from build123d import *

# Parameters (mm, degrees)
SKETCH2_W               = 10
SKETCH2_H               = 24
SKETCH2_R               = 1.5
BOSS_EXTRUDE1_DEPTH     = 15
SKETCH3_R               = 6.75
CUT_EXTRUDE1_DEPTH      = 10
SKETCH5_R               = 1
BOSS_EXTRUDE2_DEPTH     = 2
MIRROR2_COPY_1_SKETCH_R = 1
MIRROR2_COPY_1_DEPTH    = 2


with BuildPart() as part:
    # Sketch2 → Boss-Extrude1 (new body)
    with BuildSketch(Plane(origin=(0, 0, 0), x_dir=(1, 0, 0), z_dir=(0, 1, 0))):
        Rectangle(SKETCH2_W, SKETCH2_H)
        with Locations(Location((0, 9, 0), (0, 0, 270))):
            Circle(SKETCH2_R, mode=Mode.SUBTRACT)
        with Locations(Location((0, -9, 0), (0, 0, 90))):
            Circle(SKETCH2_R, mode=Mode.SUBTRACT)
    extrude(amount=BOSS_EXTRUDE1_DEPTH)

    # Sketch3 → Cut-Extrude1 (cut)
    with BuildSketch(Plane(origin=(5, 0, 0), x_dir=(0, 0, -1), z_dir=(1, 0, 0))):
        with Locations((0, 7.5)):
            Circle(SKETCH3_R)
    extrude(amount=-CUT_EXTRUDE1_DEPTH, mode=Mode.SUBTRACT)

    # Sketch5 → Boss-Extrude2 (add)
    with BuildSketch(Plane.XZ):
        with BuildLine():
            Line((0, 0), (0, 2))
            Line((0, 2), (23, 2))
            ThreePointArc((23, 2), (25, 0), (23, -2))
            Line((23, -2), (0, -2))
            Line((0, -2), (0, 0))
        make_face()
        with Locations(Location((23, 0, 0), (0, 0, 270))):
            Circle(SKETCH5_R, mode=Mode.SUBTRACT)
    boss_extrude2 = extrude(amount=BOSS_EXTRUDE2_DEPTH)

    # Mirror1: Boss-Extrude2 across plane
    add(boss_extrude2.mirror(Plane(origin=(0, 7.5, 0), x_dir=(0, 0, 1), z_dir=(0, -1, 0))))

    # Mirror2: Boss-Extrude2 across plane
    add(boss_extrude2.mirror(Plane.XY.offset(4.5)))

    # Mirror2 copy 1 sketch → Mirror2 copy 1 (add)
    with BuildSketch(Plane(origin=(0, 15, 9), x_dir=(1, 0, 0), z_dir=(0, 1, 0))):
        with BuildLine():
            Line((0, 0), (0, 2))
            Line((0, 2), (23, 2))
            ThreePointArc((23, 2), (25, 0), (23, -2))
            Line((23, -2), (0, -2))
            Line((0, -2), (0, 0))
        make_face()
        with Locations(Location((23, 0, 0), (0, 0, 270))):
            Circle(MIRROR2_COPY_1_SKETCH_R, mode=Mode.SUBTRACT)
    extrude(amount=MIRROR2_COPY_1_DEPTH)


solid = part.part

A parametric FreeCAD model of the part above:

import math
import FreeCAD as App
import Part
import Sketcher
Q = App.Units.Quantity


def add_polygon(sketch, points):
    """Adds a closed chain of lines whose ends are joined by coincident constraints."""
    first, n = sketch.GeometryCount, len(points)
    for a, b in zip(points, points[1:] + points[:1]):
        sketch.addGeometry(Part.LineSegment(App.Vector(*a, 0), App.Vector(*b, 0)), False)
    for i in range(n):
        sketch.addConstraint(Sketcher.Constraint("Coincident", first + i, 2, first + (i + 1) % n, 1))

doc = App.newDocument("Part")
params = doc.addObject("Spreadsheet::Sheet", "Params")
for row, (alias, value) in enumerate([
    ("sketch1_diameter", "3 mm"),
    ("sketch1_width", "10 mm"),
    ("sketch1_height", "24 mm"),
    ("pad1_length", "15 mm"),
    ("sketch2_diameter", "13.5 mm"),
    ("pocket1_length", "10 mm"),
    ("sketch3_diameter", "2 mm"),
    ("sketch3_radius", "2 mm"),
    ("sketch3_width", "23 mm"),
    ("pad2_length", "2 mm"),
    ("sketch4_diameter", "2 mm"),
    ("sketch4_radius", "2 mm"),
    ("sketch4_width", "23 mm"),
    ("pad3_length", "2 mm"),
], start=1):
    params.set(f"A{row}", alias)
    params.set(f"B{row}", "=" + value)
    params.setAlias(f"B{row}", alias)

body = doc.addObject("PartDesign::Body", "Body")

# Sketch on XZ plane
sketch1 = doc.addObject("Sketcher::SketchObject", "Sketch")
body.addObject(sketch1)
sketch1.AttachmentSupport = (doc.XZ_Plane, [""])
sketch1.MapMode = "FlatFace"
add_polygon(sketch1, [(-5, -12), (-5, 12), (5, 12), (5, -12)])  # lines 0-3
sketch1.addGeometry(Part.Circle(App.Vector(0, 9, 0), App.Vector(0, 0, 1), 1.5), False)  # 4
sketch1.addGeometry(Part.Circle(App.Vector(0, -9, 0), App.Vector(0, 0, 1), 1.5), False)  # 5
sketch1.addConstraint([
    Sketcher.Constraint("Vertical", 0),
    Sketcher.Constraint("Horizontal", 1),
    Sketcher.Constraint("Vertical", 2),
    Sketcher.Constraint("Horizontal", 3),
    Sketcher.Constraint("Equal", 4, 5),
    Sketcher.Constraint("Symmetric", 4, 3, 5, 3, -1, 1),
    Sketcher.Constraint("Symmetric", 0, 2, 2, 2, -1, 1),
    Sketcher.Constraint("PointOnObject", 4, 3, -2),
    Sketcher.Constraint("Diameter", 4, Q("3 mm")),
    Sketcher.Constraint("DistanceX", 1, 1, 1, 2, Q("10 mm")),
    Sketcher.Constraint("DistanceY", 0, 1, 0, 2, Q("24 mm")),
    Sketcher.Constraint("DistanceY", -1, 1, 4, 3, Q("9 mm")),
])
sketch1.setExpression("Constraints[12]", "Params.sketch1_diameter")
sketch1.setExpression("Constraints[13]", "Params.sketch1_width")
sketch1.setExpression("Constraints[14]", "Params.sketch1_height")
pad1 = doc.addObject("PartDesign::Pad", "Pad")
body.addObject(pad1)
pad1.Profile = sketch1
pad1.setExpression("Length", "Params.pad1_length")
pad1.Reversed = True

# Sketch on YZ plane
sketch2 = doc.addObject("Sketcher::SketchObject", "Sketch001")
body.addObject(sketch2)
sketch2.AttachmentSupport = (doc.YZ_Plane, [""])
sketch2.MapMode = "FlatFace"
sketch2.AttachmentOffset = App.Placement(App.Vector(0, 0, 5), App.Rotation())
sketch2.addGeometry(Part.Circle(App.Vector(8, 0, 0), App.Vector(0, 0, 1), 7), False)
sketch2.addConstraint([
    Sketcher.Constraint("PointOnObject", 0, 3, -1),
    Sketcher.Constraint("Diameter", 0, Q("13.5 mm")),
    Sketcher.Constraint("DistanceX", -1, 1, 0, 3, Q("7.5 mm")),
])
sketch2.setExpression("Constraints[1]", "Params.sketch2_diameter")
pocket1 = doc.addObject("PartDesign::Pocket", "Pocket")
body.addObject(pocket1)
pocket1.Profile = sketch2
pocket1.setExpression("Length", "Params.pocket1_length")

# Sketch on XZ plane
sketch3 = doc.addObject("Sketcher::SketchObject", "Sketch002")
body.addObject(sketch3)
sketch3.AttachmentSupport = (doc.XZ_Plane, [""])
sketch3.MapMode = "FlatFace"
sketch3.addGeometry([
    Part.LineSegment(App.Vector(23, 2, 0), App.Vector(0, 2, 0)),  # 0
    Part.LineSegment(App.Vector(0, 2, 0), App.Vector(0, -2, 0)),  # 1
    Part.LineSegment(App.Vector(0, -2, 0), App.Vector(23, -2, 0)),  # 2
    Part.ArcOfCircle(Part.Circle(App.Vector(23, 0, 0), App.Vector(0, 0, 1), 2), math.radians(-90), math.radians(90)),  # 3
    Part.Circle(App.Vector(23, 0, 0), App.Vector(0, 0, 1), 1),  # 4
], False)
sketch3.addConstraint([
    Sketcher.Constraint("Coincident", 0, 2, 1, 1),
    Sketcher.Constraint("Coincident", 1, 2, 2, 1),
    Sketcher.Constraint("Tangent", 2, 2, 3, 1),
    Sketcher.Constraint("Tangent", 3, 2, 0, 1),
    Sketcher.Constraint("Horizontal", 0),
    Sketcher.Constraint("Vertical", 1),
    Sketcher.Constraint("Horizontal", 2),
    Sketcher.Constraint("Coincident", 4, 3, 3, 3),
    Sketcher.Constraint("Symmetric", 0, 2, 1, 2, -1, 1),
    Sketcher.Constraint("Diameter", 4, Q("2 mm")),
    Sketcher.Constraint("Radius", 3, Q("2 mm")),
    Sketcher.Constraint("DistanceX", 0, 2, 0, 1, Q("23 mm")),
])
sketch3.setExpression("Constraints[9]", "Params.sketch3_diameter")
sketch3.setExpression("Constraints[10]", "Params.sketch3_radius")
sketch3.setExpression("Constraints[11]", "Params.sketch3_width")
pad2 = doc.addObject("PartDesign::Pad", "Pad001")
body.addObject(pad2)
pad2.Profile = sketch3
pad2.setExpression("Length", "Params.pad2_length")
doc.recompute()

datumplane = doc.addObject("PartDesign::Plane", "DatumPlane")
body.addObject(datumplane)
datumplane.AttachmentSupport = (doc.XZ_Plane, [""])
datumplane.MapMode = "FlatFace"
datumplane.AttachmentOffset = App.Placement(App.Vector(0, 0, -7.5), App.Rotation())
mirrored = doc.addObject("PartDesign::Mirrored", "Mirrored")
body.addObject(mirrored)
mirrored.Originals = [pad2]
mirrored.MirrorPlane = (datumplane, [""])
body.Tip = mirrored
doc.recompute()

datumplane2 = doc.addObject("PartDesign::Plane", "DatumPlane001")
body.addObject(datumplane2)
datumplane2.AttachmentSupport = (doc.XY_Plane, [""])
datumplane2.MapMode = "FlatFace"
datumplane2.AttachmentOffset = App.Placement(App.Vector(0, 0, 4.5), App.Rotation())
mirrored2 = doc.addObject("PartDesign::Mirrored", "Mirrored001")
body.addObject(mirrored2)
mirrored2.Originals = [pad2]
mirrored2.MirrorPlane = (datumplane2, [""])
body.Tip = mirrored2

# Sketch on XZ plane
sketch4 = doc.addObject("Sketcher::SketchObject", "Sketch003")
body.addObject(sketch4)
sketch4.AttachmentSupport = (doc.XZ_Plane, [""])
sketch4.MapMode = "FlatFace"
sketch4.AttachmentOffset = App.Placement(App.Vector(0, 0, -15), App.Rotation())
sketch4.addGeometry([
    Part.LineSegment(App.Vector(23, 7, 0), App.Vector(0, 7, 0)),  # 0
    Part.LineSegment(App.Vector(0, 7, 0), App.Vector(0, 11, 0)),  # 1
    Part.LineSegment(App.Vector(0, 11, 0), App.Vector(23, 11, 0)),  # 2
    Part.ArcOfCircle(Part.Circle(App.Vector(23, 9, 0), App.Vector(0, 0, 1), 2), math.radians(-90), math.radians(90)),  # 3
    Part.Circle(App.Vector(23, 9, 0), App.Vector(0, 0, 1), 1),  # 4
], False)
sketch4.addConstraint([
    Sketcher.Constraint("Coincident", 0, 2, 1, 1),
    Sketcher.Constraint("Coincident", 1, 2, 2, 1),
    Sketcher.Constraint("Tangent", 2, 2, 3, 2),
    Sketcher.Constraint("Tangent", 3, 1, 0, 1),
    Sketcher.Constraint("Horizontal", 0),
    Sketcher.Constraint("Vertical", 1),
    Sketcher.Constraint("Horizontal", 2),
    Sketcher.Constraint("Coincident", 4, 3, 3, 3),
    Sketcher.Constraint("PointOnObject", 0, 2, -2),
    Sketcher.Constraint("Diameter", 4, Q("2 mm")),
    Sketcher.Constraint("Radius", 3, Q("2 mm")),
    Sketcher.Constraint("DistanceX", 0, 2, 0, 1, Q("23 mm")),
    Sketcher.Constraint("DistanceY", -1, 1, 3, 3, Q("9 mm")),
])
sketch4.setExpression("Constraints[9]", "Params.sketch4_diameter")
sketch4.setExpression("Constraints[10]", "Params.sketch4_radius")
sketch4.setExpression("Constraints[11]", "Params.sketch4_width")
pad3 = doc.addObject("PartDesign::Pad", "Pad002")
body.addObject(pad3)
pad3.Profile = sketch4
pad3.setExpression("Length", "Params.pad3_length")
pad3.Reversed = True

doc.recompute()
